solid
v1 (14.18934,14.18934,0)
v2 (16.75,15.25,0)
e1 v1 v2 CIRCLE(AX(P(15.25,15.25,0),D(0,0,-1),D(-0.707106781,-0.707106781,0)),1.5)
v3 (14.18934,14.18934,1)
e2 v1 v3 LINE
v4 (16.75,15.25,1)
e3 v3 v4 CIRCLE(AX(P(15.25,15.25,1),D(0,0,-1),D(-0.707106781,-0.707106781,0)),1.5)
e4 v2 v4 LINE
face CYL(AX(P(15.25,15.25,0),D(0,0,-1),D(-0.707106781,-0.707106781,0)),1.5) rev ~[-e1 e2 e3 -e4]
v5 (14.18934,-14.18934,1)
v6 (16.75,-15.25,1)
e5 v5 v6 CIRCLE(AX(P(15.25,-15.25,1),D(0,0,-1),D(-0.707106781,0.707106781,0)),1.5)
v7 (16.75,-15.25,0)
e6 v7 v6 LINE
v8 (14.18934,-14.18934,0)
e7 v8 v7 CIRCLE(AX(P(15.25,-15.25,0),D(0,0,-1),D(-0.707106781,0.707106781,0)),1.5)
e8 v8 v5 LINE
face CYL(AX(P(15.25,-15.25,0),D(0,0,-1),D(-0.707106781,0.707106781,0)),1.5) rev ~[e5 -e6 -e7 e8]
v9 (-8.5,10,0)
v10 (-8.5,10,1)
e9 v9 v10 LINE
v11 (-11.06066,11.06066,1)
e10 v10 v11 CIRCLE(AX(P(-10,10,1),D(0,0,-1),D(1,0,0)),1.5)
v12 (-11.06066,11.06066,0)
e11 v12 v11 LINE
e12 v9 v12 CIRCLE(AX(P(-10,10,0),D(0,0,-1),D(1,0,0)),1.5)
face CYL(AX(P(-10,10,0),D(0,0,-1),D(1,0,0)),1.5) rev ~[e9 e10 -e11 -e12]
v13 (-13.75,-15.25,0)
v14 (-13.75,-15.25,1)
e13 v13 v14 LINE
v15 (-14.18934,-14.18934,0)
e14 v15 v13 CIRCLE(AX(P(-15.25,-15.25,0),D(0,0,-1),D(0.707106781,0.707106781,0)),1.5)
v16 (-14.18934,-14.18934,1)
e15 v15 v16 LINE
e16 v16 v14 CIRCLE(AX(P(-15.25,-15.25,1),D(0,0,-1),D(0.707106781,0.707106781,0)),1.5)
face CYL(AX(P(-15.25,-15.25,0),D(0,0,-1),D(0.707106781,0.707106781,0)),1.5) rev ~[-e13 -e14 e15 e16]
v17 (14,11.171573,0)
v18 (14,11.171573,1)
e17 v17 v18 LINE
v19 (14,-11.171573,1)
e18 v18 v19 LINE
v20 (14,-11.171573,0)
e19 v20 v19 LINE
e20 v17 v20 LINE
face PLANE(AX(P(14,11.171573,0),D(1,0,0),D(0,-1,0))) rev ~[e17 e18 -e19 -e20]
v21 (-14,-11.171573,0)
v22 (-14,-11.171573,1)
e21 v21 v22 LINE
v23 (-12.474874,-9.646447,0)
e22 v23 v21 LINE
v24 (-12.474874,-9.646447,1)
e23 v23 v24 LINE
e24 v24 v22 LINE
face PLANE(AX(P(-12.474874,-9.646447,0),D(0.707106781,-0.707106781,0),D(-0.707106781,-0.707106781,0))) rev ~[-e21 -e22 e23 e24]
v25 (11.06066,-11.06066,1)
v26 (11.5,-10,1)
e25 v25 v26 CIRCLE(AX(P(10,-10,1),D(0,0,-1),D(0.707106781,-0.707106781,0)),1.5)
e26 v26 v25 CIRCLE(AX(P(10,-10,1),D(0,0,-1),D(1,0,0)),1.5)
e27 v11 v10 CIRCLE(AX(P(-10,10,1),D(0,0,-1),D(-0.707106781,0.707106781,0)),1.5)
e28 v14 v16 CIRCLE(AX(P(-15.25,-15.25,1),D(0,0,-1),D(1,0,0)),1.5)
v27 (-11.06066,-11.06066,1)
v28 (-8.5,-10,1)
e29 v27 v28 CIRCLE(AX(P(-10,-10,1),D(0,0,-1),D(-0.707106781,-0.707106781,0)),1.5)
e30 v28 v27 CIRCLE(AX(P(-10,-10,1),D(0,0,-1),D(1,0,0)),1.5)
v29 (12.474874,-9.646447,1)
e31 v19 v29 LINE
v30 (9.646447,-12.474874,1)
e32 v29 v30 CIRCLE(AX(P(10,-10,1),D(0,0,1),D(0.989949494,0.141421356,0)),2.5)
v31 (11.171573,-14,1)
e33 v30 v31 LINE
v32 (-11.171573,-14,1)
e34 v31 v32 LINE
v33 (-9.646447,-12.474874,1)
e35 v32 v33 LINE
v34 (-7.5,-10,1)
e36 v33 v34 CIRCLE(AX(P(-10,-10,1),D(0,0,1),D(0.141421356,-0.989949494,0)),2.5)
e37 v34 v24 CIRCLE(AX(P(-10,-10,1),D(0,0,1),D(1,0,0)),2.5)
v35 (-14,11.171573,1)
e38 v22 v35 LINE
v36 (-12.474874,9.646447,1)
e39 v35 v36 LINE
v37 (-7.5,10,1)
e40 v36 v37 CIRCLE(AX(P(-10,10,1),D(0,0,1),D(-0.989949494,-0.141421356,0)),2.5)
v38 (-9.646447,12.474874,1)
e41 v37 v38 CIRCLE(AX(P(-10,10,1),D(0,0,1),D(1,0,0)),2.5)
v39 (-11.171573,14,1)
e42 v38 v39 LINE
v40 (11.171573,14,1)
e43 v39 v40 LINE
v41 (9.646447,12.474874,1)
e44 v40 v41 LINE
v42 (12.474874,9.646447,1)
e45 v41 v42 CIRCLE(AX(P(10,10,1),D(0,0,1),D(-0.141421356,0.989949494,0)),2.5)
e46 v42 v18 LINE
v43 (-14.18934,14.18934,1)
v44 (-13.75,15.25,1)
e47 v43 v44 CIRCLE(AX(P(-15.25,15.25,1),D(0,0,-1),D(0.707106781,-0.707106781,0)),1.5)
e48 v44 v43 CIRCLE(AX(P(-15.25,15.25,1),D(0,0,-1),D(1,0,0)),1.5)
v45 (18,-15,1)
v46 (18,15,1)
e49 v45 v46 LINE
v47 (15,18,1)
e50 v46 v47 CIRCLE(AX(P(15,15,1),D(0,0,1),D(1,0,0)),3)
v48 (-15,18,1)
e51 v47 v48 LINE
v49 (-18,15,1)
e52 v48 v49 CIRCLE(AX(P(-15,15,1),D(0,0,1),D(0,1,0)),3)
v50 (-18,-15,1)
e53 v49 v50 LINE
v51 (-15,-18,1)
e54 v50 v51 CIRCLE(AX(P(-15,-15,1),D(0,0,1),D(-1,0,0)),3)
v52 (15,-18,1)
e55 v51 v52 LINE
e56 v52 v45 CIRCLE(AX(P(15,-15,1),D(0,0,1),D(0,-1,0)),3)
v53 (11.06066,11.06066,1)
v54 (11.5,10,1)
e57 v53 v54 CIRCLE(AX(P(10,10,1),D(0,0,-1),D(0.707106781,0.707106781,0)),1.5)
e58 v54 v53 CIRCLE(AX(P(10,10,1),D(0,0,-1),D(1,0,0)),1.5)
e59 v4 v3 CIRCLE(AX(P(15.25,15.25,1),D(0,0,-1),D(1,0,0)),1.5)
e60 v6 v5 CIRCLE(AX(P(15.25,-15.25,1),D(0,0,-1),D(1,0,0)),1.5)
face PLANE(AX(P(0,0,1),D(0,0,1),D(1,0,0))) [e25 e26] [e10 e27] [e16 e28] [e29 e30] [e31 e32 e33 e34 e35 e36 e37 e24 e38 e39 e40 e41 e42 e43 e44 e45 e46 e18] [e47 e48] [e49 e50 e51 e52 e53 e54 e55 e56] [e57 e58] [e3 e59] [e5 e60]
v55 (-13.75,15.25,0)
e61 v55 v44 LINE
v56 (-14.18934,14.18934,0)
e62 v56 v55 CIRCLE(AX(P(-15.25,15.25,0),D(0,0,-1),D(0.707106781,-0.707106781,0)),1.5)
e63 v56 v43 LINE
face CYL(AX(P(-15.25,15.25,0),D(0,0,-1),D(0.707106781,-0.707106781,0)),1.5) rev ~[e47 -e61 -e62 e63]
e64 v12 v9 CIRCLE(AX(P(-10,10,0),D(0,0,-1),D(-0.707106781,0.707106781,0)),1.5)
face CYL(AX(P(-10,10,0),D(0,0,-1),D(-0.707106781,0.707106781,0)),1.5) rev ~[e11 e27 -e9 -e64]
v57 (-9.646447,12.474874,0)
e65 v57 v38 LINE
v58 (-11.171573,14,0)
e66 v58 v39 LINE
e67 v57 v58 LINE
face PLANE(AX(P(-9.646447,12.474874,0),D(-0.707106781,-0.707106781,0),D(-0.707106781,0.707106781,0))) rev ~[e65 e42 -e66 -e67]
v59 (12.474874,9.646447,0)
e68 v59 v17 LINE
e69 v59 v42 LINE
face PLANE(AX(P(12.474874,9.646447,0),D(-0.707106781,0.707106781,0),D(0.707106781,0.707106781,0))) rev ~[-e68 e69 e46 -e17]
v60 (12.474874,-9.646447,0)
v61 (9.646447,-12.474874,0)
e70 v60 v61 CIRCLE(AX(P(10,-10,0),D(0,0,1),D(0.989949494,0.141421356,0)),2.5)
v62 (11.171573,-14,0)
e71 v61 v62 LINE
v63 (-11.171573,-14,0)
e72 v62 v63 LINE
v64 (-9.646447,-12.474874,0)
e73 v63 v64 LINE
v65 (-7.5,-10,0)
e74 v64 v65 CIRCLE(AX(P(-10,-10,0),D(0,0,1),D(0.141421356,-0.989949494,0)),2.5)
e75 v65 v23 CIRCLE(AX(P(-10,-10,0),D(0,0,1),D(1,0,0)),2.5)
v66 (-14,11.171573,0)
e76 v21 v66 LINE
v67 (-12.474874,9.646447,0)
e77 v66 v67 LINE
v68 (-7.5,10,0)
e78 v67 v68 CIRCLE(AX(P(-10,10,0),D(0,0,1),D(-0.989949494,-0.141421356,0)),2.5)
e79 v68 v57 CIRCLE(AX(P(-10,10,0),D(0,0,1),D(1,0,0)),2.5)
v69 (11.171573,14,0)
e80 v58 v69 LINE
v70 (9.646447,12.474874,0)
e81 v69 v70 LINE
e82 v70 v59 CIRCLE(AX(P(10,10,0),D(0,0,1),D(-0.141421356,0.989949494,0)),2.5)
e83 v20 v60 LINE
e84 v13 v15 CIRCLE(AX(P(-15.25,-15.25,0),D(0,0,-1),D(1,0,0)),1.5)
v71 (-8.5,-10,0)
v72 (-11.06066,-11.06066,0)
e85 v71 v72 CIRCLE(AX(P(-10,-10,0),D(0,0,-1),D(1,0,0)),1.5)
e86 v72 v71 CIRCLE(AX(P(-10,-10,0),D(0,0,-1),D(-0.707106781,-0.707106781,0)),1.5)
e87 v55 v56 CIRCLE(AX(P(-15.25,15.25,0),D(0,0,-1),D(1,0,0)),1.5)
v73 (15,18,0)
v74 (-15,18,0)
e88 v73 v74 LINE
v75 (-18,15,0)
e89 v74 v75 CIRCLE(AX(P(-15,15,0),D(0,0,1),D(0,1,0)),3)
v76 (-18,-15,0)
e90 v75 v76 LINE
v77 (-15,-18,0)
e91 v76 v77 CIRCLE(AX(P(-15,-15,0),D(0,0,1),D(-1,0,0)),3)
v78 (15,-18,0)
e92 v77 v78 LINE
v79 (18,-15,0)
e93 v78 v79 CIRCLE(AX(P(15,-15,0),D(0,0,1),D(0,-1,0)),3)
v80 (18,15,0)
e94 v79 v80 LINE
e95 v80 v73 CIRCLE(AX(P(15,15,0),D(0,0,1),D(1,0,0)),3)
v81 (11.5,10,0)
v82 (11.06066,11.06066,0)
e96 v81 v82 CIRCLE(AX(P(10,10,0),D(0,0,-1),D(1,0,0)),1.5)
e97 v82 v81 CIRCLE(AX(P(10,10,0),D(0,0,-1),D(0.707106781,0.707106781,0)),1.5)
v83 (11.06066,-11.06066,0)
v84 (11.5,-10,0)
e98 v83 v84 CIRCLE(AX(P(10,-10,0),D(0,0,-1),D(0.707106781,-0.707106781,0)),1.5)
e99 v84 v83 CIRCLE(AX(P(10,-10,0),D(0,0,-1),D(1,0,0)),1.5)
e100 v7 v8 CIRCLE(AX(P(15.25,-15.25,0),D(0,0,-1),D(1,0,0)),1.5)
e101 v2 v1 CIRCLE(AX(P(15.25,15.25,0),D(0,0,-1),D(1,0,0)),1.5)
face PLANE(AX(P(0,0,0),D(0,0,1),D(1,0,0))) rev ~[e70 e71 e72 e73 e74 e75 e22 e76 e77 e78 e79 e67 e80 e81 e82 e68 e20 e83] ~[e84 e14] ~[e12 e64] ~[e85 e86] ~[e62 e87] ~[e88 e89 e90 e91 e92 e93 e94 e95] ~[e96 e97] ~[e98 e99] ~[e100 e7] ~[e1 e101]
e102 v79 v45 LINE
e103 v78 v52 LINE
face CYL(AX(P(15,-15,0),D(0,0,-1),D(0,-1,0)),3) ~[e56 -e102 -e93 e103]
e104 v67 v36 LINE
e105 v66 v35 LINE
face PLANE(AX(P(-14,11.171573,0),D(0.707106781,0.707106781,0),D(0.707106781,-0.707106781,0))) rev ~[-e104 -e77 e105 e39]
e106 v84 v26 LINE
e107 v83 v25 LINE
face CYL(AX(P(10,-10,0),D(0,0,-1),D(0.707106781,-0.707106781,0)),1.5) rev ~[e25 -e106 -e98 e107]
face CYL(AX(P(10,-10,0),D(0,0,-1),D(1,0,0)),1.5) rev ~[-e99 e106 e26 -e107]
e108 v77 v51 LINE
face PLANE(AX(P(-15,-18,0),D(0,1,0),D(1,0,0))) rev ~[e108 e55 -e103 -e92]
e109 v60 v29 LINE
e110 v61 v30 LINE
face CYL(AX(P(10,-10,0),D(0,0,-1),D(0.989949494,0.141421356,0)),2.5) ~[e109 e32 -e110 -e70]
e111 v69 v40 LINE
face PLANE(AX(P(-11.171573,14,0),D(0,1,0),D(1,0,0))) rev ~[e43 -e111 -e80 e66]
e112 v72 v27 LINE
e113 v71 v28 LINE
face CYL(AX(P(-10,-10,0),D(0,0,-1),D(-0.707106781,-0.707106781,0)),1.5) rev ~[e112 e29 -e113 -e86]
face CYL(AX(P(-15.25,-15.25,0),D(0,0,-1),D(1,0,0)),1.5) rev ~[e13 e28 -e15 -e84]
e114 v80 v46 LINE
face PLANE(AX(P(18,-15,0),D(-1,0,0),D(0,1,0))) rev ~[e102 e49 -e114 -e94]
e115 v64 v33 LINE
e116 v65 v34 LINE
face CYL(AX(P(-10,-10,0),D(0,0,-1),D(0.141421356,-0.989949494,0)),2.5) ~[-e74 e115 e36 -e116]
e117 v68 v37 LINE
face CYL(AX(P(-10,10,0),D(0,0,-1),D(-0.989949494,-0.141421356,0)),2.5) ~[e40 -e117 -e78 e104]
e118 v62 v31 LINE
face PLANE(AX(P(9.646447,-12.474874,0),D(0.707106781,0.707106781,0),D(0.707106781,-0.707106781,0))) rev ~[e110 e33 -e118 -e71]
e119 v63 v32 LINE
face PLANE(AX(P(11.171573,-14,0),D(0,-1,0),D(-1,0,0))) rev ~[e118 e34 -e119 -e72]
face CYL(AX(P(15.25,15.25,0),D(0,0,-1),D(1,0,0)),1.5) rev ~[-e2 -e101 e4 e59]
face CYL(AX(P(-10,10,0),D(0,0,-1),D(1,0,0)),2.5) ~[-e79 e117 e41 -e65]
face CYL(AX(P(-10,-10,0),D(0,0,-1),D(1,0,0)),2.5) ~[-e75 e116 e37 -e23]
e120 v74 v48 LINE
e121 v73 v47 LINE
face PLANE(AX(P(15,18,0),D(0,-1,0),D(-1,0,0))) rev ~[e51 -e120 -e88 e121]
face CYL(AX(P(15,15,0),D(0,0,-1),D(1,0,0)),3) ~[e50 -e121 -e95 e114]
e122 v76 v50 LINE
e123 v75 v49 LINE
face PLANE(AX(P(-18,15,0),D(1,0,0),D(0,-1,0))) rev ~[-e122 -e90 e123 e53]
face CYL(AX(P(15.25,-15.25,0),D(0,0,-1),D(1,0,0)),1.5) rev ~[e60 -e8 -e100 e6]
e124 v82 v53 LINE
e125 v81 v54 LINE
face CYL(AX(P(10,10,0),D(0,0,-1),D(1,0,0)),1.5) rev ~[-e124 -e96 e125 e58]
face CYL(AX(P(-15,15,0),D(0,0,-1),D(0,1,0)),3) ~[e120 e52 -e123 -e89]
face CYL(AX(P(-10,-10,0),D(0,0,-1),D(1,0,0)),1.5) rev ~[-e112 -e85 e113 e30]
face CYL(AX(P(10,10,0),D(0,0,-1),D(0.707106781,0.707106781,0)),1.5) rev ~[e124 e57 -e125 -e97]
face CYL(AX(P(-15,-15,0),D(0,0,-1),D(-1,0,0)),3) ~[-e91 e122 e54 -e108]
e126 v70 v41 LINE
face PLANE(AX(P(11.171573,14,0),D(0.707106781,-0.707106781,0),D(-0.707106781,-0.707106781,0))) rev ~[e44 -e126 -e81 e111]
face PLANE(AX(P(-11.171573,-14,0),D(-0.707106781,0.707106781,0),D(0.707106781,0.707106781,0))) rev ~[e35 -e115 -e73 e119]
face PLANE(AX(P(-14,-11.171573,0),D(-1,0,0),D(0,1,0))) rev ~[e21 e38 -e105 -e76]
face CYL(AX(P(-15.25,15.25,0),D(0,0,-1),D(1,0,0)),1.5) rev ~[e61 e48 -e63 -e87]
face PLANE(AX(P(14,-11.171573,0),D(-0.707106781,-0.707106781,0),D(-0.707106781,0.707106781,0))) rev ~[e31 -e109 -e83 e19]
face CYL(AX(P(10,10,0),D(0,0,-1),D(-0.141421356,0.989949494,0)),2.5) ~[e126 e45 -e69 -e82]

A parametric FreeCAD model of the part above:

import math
import FreeCAD as App
import Part
import Sketcher
from FreeCAD import Vector
Q = App.Units.Quantity

doc = App.newDocument("Part")
body = doc.addObject("PartDesign::Body", "Body")

sketch1 = doc.addObject("Sketcher::SketchObject", "Sketch")
body.addObject(sketch1)
sketch1.AttachmentSupport = (doc.XY_Plane, [""])
sketch1.MapMode = "FlatFace"
sketch1.addGeometry([
    Part.LineSegment(Vector(15, 18, 0), Vector(-15, 18, 0)),
    Part.ArcOfCircle(Part.Circle(Vector(-15, 15, 0), Vector(0, 0, 1), 3), math.radians(90), math.radians(180)),
    Part.LineSegment(Vector(-18, 15, 0), Vector(-18, -15, 0)),
    Part.ArcOfCircle(Part.Circle(Vector(-15, -15, 0), Vector(0, 0, 1), 3), math.radians(180), math.radians(270)),
    Part.LineSegment(Vector(-15, -18, 0), Vector(15, -18, 0)),
    Part.ArcOfCircle(Part.Circle(Vector(15, -15, 0), Vector(0, 0, 1), 3), math.radians(-90), math.radians(0)),
    Part.LineSegment(Vector(18, -15, 0), Vector(18, 15, 0)),
    Part.ArcOfCircle(Part.Circle(Vector(15, 15, 0), Vector(0, 0, 1), 3), math.radians(0), math.radians(90)),
    Part.ArcOfCircle(Part.Circle(Vector(-15.2, -15.2, 0), Vector(0, 0, 1), 1.5), math.radians(0), math.radians(45)),
    Part.ArcOfCircle(Part.Circle(Vector(-15.2, -15.2, 0), Vector(0, 0, 1), 1.5), math.radians(45), math.radians(360)),
    Part.ArcOfCircle(Part.Circle(Vector(15.2, -15.2, 0), Vector(0, 0, 1), 1.5), math.radians(0), math.radians(135)),
    Part.ArcOfCircle(Part.Circle(Vector(15.2, -15.2, 0), Vector(0, 0, 1), 1.5), math.radians(135), math.radians(360)),
    Part.ArcOfCircle(Part.Circle(Vector(10, -10, 0), Vector(0, 0, 1), 1.5), math.radians(0), math.radians(315)),
    Part.ArcOfCircle(Part.Circle(Vector(10, -10, 0), Vector(0, 0, 1), 1.5), math.radians(-45), math.radians(0)),
    Part.ArcOfCircle(Part.Circle(Vector(-10, 10, 0), Vector(0, 0, 1), 1.5), math.radians(135), math.radians(360)),
    Part.ArcOfCircle(Part.Circle(Vector(-10, 10, 0), Vector(0, 0, 1), 1.5), math.radians(0), math.radians(135)),
    Part.ArcOfCircle(Part.Circle(Vector(-15.2, 15.2, 0), Vector(0, 0, 1), 1.5), math.radians(0), math.radians(315)),
    Part.ArcOfCircle(Part.Circle(Vector(-15.2, 15.2, 0), Vector(0, 0, 1), 1.5), math.radians(-45), math.radians(0)),
    Part.LineSegment(Vector(-14, -11.2, 0), Vector(-14, 11.2, 0)),
    Part.LineSegment(Vector(-14, 11.2, 0), Vector(-12.5, 9.6, 0)),
    Part.ArcOfCircle(Part.Circle(Vector(-10, 10, 0), Vector(0, 0, 1), 2.5), math.radians(-172), math.radians(0)),
    Part.ArcOfCircle(Part.Circle(Vector(-10, 10, 0), Vector(0, 0, 1), 2.5), math.radians(0), math.radians(82)),
    Part.LineSegment(Vector(-9.6, 12.5, 0), Vector(-11.2, 14, 0)),
    Part.LineSegment(Vector(-11.2, 14, 0), Vector(11.2, 14, 0)),
    Part.LineSegment(Vector(11.2, 14, 0), Vector(9.6, 12.5, 0)),
    Part.ArcOfCircle(Part.Circle(Vector(10, 10, 0), Vector(0, 0, 1), 2.5), math.radians(98), math.radians(352)),
    Part.LineSegment(Vector(12.5, 9.6, 0), Vector(14, 11.2, 0)),
    Part.LineSegment(Vector(14, 11.2, 0), Vector(14, -11.2, 0)),
    Part.LineSegment(Vector(14, -11.2, 0), Vector(12.5, -9.6, 0)),
    Part.ArcOfCircle(Part.Circle(Vector(10, -10, 0), Vector(0, 0, 1), 2.5), math.radians(8), math.radians(262)),
    Part.LineSegment(Vector(9.6, -12.5, 0), Vector(11.2, -14, 0)),
    Part.LineSegment(Vector(11.2, -14, 0), Vector(-11.2, -14, 0)),
    Part.LineSegment(Vector(-11.2, -14, 0), Vector(-9.6, -12.5, 0)),
    Part.ArcOfCircle(Part.Circle(Vector(-10, -10, 0), Vector(0, 0, 1), 2.5), math.radians(-82), math.radians(0)),
    Part.ArcOfCircle(Part.Circle(Vector(-10, -10, 0), Vector(0, 0, 1), 2.5), math.radians(0), math.radians(172)),
    Part.LineSegment(Vector(-12.5, -9.6, 0), Vector(-14, -11.2, 0)),
    Part.ArcOfCircle(Part.Circle(Vector(10, 10, 0), Vector(0, 0, 1), 1.5), math.radians(0), math.radians(45)),
    Part.ArcOfCircle(Part.Circle(Vector(10, 10, 0), Vector(0, 0, 1), 1.5), math.radians(45), math.radians(360)),
    Part.ArcOfCircle(Part.Circle(Vector(15.2, 15.2, 0), Vector(0, 0, 1), 1.5), math.radians(0), math.radians(225)),
    Part.ArcOfCircle(Part.Circle(Vector(15.2, 15.2, 0), Vector(0, 0, 1), 1.5), math.radians(-135), math.radians(0)),
    Part.ArcOfCircle(Part.Circle(Vector(-10, -10, 0), Vector(0, 0, 1), 1.5), math.radians(-135), math.radians(0)),
    Part.ArcOfCircle(Part.Circle(Vector(-10, -10, 0), Vector(0, 0, 1), 1.5), math.radians(0), math.radians(225)),
], False)
sketch1.addConstraint([
    Sketcher.Constraint("Tangent", 0, 2, 1, 1),
    Sketcher.Constraint("Tangent", 1, 2, 2, 1),
    Sketcher.Constraint("Tangent", 2, 2, 3, 1),
    Sketcher.Constraint("Tangent", 3, 2, 4, 1),
    Sketcher.Constraint("Tangent", 4, 2, 5, 1),
    Sketcher.Constraint("Tangent", 5, 2, 6, 1),
    Sketcher.Constraint("Tangent", 6, 2, 7, 1),
    Sketcher.Constraint("Tangent", 7, 2, 0, 1),
    Sketcher.Constraint("Tangent", 8, 1, 9, 2),
    Sketcher.Constraint("Coincident", 9, 1, 8, 2),
    Sketcher.Constraint("Tangent", 10, 1, 11, 2),
    Sketcher.Constraint("Coincident", 11, 1, 10, 2),
    Sketcher.Constraint("Tangent", 12, 1, 13, 2),
    Sketcher.Constraint("Coincident", 13, 1, 12, 2),
    Sketcher.Constraint("Tangent", 14, 1, 15, 2),
    Sketcher.Constraint("Coincident", 15, 1, 14, 2),
    Sketcher.Constraint("Tangent", 16, 1, 17, 2),
    Sketcher.Constraint("Coincident", 17, 1, 16, 2),
    Sketcher.Constraint("Coincident", 18, 2, 19, 1),
    Sketcher.Constraint("Coincident", 19, 2, 20, 1),
    Sketcher.Constraint("Tangent", 20, 2, 21, 1),
    Sketcher.Constraint("Coincident", 21, 2, 22, 1),
    Sketcher.Constraint("Coincident", 22, 2, 23, 1),
    Sketcher.Constraint("Coincident", 23, 2, 24, 1),
    Sketcher.Constraint("Coincident", 24, 2, 25, 1),
    Sketcher.Constraint("Coincident", 25, 2, 26, 1),
    Sketcher.Constraint("Coincident", 26, 2, 27, 1),
    Sketcher.Constraint("Coincident", 27, 2, 28, 1),
    Sketcher.Constraint("Coincident", 28, 2, 29, 1),
    Sketcher.Constraint("Coincident", 29, 2, 30, 1),
    Sketcher.Constraint("Coincident", 30, 2, 31, 1),
    Sketcher.Constraint("Coincident", 31, 2, 32, 1),
    Sketcher.Constraint("Coincident", 32, 2, 33, 1),
    Sketcher.Constraint("Tangent", 33, 2, 34, 1),
    Sketcher.Constraint("Coincident", 34, 2, 35, 1),
    Sketcher.Constraint("Coincident", 35, 2, 18, 1),
    Sketcher.Constraint("Tangent", 36, 1, 37, 2),
    Sketcher.Constraint("Coincident", 37, 1, 36, 2),
    Sketcher.Constraint("Tangent", 38, 1, 39, 2),
    Sketcher.Constraint("Coincident", 39, 1, 38, 2),
    Sketcher.Constraint("Tangent", 40, 1, 41, 2),
    Sketcher.Constraint("Coincident", 41, 1, 40, 2),
    Sketcher.Constraint("Horizontal", 0),
    Sketcher.Constraint("Vertical", 2),
    Sketcher.Constraint("Horizontal", 4),
    Sketcher.Constraint("Vertical", 6),
    Sketcher.Constraint("Vertical", 18),
    Sketcher.Constraint("Horizontal", 23),
    Sketcher.Constraint("Vertical", 27),
    Sketcher.Constraint("Horizontal", 31),
    Sketcher.Constraint("Coincident", 20, 3, 14, 3),
    Sketcher.Constraint("Coincident", 29, 3, 12, 3),
    Sketcher.Constraint("Coincident", 36, 3, 25, 3),
    Sketcher.Constraint("Coincident", 40, 3, 33, 3),
    Sketcher.Constraint("Equal", 1, 3),
    Sketcher.Constraint("Equal", 3, 5),
    Sketcher.Constraint("Equal", 5, 7),
    Sketcher.Constraint("Equal", 9, 10),
    Sketcher.Constraint("Equal", 11, 12),
    Sketcher.Constraint("Equal", 13, 14),
    Sketcher.Constraint("Equal", 15, 16),
    Sketcher.Constraint("Equal", 20, 21),
    Sketcher.Constraint("Equal", 21, 25),
    Sketcher.Constraint("Equal", 25, 29),
    Sketcher.Constraint("Equal", 29, 33),
    Sketcher.Constraint("Equal", 33, 34),
    Sketcher.Constraint("Equal", 17, 36),
    Sketcher.Constraint("Equal", 37, 38),
    Sketcher.Constraint("Equal", 39, 40),
    Sketcher.Constraint("Symmetric", 1, 3, 5, 3, -1, 1),
    Sketcher.Constraint("Symmetric", 12, 3, 14, 3, -1, 1),
    Sketcher.Constraint("Symmetric", 10, 3, 16, 3, -1, 1),
    Sketcher.Constraint("Symmetric", 25, 3, 33, 3, -1, 1),
    Sketcher.Constraint("Symmetric", 8, 3, 38, 3, -1, 1),
    Sketcher.Constraint("Symmetric", 18, 2, 27, 2, -1, 1),
    Sketcher.Constraint("Symmetric", 22, 2, 30, 2, -1, 1),
    Sketcher.Constraint("Symmetric", 8, 3, 10, 3, -2),
    Sketcher.Constraint("Symmetric", 14, 3, 25, 3, -2),
    Sketcher.Constraint("Parallel", 19, 22),
    Sketcher.Constraint("Perpendicular", 22, 24),
    Sketcher.Constraint("Parallel", 24, 26),
    Sketcher.Constraint("Perpendicular", 26, 28),
    Sketcher.Constraint("Parallel", 28, 30),
    Sketcher.Constraint("Perpendicular", 30, 32),
    Sketcher.Constraint("Parallel", 32, 35),
    Sketcher.Constraint("Horizontal", 11, 3, 8, 1),
    Sketcher.Constraint("Horizontal", 8, 1, 10, 1),
    Sketcher.Constraint("Horizontal", 9, 1, 11, 1),
    Sketcher.Constraint("Horizontal", 41, 3, 12, 1),
    Sketcher.Constraint("Horizontal", 37, 3, 15, 1),
    Sketcher.Constraint("Horizontal", 39, 3, 16, 1),
    Sketcher.Constraint("Horizontal", 15, 1, 20, 2),
    Sketcher.Constraint("Horizontal", 21, 2, 24, 2),
    Sketcher.Constraint("Horizontal", 19, 2, 25, 2),
    Sketcher.Constraint("Horizontal", 18, 2, 26, 2),
    Sketcher.Constraint("Horizontal", 29, 2, 32, 2),
    Sketcher.Constraint("Horizontal", 12, 1, 33, 2),
    Sketcher.Constraint("Horizontal", 28, 2, 34, 2),
    Sketcher.Constraint("Horizontal", 20, 2, 36, 1),
    Sketcher.Constraint("Horizontal", 14, 1, 37, 1),
    Sketcher.Constraint("Horizontal", 16, 1, 38, 1),
    Sketcher.Constraint("Horizontal", 17, 1, 39, 1),
    Sketcher.Constraint("Horizontal", 13, 1, 40, 1),
    Sketcher.Constraint("Horizontal", 33, 2, 41, 1),
    Sketcher.Constraint("Vertical", 9, 1, 17, 1),
    Sketcher.Constraint("Vertical", 13, 1, 37, 1),
    Sketcher.Constraint("Equal", 4, 2),
    Sketcher.Constraint("Equal", 31, 18),
    Sketcher.Constraint("Equal", 19, 22),
    Sketcher.Constraint("Radius", 1, Q("3 mm")),
    Sketcher.Constraint("Radius", 8, Q("1.5 mm")),
    Sketcher.Constraint("Radius", 20, Q("2.5 mm")),
    Sketcher.Constraint("DistanceX", 0, 2, 0, 1, Q("30 mm")),
    Sketcher.Constraint("DistanceX", -1, 1, 12, 3, Q("10 mm")),
    Sketcher.Constraint("DistanceY", 12, 3, -1, 1, Q("10 mm")),
    Sketcher.Constraint("DistanceX", 18, 2, -1, 1, Q("14 mm")),
    Sketcher.Constraint("DistanceX", 8, 3, -1, 1, Q("15.25 mm")),
    Sketcher.Constraint("DistanceY", 8, 3, -1, 1, Q("15.25 mm")),
    Sketcher.Constraint("DistanceX", 23, 1, 23, 2, Q("22.343146 mm")),
    Sketcher.Constraint("DistanceX", 9, 1, -1, 1, Q("14.18934 mm")),
    Sketcher.Constraint("DistanceX", -1, 1, 13, 1, Q("11.06066 mm")),
])
pad1 = doc.addObject("PartDesign::Pad", "Pad")
body.addObject(pad1)
pad1.Profile = sketch1
pad1.Length = 1

doc.recompute()
